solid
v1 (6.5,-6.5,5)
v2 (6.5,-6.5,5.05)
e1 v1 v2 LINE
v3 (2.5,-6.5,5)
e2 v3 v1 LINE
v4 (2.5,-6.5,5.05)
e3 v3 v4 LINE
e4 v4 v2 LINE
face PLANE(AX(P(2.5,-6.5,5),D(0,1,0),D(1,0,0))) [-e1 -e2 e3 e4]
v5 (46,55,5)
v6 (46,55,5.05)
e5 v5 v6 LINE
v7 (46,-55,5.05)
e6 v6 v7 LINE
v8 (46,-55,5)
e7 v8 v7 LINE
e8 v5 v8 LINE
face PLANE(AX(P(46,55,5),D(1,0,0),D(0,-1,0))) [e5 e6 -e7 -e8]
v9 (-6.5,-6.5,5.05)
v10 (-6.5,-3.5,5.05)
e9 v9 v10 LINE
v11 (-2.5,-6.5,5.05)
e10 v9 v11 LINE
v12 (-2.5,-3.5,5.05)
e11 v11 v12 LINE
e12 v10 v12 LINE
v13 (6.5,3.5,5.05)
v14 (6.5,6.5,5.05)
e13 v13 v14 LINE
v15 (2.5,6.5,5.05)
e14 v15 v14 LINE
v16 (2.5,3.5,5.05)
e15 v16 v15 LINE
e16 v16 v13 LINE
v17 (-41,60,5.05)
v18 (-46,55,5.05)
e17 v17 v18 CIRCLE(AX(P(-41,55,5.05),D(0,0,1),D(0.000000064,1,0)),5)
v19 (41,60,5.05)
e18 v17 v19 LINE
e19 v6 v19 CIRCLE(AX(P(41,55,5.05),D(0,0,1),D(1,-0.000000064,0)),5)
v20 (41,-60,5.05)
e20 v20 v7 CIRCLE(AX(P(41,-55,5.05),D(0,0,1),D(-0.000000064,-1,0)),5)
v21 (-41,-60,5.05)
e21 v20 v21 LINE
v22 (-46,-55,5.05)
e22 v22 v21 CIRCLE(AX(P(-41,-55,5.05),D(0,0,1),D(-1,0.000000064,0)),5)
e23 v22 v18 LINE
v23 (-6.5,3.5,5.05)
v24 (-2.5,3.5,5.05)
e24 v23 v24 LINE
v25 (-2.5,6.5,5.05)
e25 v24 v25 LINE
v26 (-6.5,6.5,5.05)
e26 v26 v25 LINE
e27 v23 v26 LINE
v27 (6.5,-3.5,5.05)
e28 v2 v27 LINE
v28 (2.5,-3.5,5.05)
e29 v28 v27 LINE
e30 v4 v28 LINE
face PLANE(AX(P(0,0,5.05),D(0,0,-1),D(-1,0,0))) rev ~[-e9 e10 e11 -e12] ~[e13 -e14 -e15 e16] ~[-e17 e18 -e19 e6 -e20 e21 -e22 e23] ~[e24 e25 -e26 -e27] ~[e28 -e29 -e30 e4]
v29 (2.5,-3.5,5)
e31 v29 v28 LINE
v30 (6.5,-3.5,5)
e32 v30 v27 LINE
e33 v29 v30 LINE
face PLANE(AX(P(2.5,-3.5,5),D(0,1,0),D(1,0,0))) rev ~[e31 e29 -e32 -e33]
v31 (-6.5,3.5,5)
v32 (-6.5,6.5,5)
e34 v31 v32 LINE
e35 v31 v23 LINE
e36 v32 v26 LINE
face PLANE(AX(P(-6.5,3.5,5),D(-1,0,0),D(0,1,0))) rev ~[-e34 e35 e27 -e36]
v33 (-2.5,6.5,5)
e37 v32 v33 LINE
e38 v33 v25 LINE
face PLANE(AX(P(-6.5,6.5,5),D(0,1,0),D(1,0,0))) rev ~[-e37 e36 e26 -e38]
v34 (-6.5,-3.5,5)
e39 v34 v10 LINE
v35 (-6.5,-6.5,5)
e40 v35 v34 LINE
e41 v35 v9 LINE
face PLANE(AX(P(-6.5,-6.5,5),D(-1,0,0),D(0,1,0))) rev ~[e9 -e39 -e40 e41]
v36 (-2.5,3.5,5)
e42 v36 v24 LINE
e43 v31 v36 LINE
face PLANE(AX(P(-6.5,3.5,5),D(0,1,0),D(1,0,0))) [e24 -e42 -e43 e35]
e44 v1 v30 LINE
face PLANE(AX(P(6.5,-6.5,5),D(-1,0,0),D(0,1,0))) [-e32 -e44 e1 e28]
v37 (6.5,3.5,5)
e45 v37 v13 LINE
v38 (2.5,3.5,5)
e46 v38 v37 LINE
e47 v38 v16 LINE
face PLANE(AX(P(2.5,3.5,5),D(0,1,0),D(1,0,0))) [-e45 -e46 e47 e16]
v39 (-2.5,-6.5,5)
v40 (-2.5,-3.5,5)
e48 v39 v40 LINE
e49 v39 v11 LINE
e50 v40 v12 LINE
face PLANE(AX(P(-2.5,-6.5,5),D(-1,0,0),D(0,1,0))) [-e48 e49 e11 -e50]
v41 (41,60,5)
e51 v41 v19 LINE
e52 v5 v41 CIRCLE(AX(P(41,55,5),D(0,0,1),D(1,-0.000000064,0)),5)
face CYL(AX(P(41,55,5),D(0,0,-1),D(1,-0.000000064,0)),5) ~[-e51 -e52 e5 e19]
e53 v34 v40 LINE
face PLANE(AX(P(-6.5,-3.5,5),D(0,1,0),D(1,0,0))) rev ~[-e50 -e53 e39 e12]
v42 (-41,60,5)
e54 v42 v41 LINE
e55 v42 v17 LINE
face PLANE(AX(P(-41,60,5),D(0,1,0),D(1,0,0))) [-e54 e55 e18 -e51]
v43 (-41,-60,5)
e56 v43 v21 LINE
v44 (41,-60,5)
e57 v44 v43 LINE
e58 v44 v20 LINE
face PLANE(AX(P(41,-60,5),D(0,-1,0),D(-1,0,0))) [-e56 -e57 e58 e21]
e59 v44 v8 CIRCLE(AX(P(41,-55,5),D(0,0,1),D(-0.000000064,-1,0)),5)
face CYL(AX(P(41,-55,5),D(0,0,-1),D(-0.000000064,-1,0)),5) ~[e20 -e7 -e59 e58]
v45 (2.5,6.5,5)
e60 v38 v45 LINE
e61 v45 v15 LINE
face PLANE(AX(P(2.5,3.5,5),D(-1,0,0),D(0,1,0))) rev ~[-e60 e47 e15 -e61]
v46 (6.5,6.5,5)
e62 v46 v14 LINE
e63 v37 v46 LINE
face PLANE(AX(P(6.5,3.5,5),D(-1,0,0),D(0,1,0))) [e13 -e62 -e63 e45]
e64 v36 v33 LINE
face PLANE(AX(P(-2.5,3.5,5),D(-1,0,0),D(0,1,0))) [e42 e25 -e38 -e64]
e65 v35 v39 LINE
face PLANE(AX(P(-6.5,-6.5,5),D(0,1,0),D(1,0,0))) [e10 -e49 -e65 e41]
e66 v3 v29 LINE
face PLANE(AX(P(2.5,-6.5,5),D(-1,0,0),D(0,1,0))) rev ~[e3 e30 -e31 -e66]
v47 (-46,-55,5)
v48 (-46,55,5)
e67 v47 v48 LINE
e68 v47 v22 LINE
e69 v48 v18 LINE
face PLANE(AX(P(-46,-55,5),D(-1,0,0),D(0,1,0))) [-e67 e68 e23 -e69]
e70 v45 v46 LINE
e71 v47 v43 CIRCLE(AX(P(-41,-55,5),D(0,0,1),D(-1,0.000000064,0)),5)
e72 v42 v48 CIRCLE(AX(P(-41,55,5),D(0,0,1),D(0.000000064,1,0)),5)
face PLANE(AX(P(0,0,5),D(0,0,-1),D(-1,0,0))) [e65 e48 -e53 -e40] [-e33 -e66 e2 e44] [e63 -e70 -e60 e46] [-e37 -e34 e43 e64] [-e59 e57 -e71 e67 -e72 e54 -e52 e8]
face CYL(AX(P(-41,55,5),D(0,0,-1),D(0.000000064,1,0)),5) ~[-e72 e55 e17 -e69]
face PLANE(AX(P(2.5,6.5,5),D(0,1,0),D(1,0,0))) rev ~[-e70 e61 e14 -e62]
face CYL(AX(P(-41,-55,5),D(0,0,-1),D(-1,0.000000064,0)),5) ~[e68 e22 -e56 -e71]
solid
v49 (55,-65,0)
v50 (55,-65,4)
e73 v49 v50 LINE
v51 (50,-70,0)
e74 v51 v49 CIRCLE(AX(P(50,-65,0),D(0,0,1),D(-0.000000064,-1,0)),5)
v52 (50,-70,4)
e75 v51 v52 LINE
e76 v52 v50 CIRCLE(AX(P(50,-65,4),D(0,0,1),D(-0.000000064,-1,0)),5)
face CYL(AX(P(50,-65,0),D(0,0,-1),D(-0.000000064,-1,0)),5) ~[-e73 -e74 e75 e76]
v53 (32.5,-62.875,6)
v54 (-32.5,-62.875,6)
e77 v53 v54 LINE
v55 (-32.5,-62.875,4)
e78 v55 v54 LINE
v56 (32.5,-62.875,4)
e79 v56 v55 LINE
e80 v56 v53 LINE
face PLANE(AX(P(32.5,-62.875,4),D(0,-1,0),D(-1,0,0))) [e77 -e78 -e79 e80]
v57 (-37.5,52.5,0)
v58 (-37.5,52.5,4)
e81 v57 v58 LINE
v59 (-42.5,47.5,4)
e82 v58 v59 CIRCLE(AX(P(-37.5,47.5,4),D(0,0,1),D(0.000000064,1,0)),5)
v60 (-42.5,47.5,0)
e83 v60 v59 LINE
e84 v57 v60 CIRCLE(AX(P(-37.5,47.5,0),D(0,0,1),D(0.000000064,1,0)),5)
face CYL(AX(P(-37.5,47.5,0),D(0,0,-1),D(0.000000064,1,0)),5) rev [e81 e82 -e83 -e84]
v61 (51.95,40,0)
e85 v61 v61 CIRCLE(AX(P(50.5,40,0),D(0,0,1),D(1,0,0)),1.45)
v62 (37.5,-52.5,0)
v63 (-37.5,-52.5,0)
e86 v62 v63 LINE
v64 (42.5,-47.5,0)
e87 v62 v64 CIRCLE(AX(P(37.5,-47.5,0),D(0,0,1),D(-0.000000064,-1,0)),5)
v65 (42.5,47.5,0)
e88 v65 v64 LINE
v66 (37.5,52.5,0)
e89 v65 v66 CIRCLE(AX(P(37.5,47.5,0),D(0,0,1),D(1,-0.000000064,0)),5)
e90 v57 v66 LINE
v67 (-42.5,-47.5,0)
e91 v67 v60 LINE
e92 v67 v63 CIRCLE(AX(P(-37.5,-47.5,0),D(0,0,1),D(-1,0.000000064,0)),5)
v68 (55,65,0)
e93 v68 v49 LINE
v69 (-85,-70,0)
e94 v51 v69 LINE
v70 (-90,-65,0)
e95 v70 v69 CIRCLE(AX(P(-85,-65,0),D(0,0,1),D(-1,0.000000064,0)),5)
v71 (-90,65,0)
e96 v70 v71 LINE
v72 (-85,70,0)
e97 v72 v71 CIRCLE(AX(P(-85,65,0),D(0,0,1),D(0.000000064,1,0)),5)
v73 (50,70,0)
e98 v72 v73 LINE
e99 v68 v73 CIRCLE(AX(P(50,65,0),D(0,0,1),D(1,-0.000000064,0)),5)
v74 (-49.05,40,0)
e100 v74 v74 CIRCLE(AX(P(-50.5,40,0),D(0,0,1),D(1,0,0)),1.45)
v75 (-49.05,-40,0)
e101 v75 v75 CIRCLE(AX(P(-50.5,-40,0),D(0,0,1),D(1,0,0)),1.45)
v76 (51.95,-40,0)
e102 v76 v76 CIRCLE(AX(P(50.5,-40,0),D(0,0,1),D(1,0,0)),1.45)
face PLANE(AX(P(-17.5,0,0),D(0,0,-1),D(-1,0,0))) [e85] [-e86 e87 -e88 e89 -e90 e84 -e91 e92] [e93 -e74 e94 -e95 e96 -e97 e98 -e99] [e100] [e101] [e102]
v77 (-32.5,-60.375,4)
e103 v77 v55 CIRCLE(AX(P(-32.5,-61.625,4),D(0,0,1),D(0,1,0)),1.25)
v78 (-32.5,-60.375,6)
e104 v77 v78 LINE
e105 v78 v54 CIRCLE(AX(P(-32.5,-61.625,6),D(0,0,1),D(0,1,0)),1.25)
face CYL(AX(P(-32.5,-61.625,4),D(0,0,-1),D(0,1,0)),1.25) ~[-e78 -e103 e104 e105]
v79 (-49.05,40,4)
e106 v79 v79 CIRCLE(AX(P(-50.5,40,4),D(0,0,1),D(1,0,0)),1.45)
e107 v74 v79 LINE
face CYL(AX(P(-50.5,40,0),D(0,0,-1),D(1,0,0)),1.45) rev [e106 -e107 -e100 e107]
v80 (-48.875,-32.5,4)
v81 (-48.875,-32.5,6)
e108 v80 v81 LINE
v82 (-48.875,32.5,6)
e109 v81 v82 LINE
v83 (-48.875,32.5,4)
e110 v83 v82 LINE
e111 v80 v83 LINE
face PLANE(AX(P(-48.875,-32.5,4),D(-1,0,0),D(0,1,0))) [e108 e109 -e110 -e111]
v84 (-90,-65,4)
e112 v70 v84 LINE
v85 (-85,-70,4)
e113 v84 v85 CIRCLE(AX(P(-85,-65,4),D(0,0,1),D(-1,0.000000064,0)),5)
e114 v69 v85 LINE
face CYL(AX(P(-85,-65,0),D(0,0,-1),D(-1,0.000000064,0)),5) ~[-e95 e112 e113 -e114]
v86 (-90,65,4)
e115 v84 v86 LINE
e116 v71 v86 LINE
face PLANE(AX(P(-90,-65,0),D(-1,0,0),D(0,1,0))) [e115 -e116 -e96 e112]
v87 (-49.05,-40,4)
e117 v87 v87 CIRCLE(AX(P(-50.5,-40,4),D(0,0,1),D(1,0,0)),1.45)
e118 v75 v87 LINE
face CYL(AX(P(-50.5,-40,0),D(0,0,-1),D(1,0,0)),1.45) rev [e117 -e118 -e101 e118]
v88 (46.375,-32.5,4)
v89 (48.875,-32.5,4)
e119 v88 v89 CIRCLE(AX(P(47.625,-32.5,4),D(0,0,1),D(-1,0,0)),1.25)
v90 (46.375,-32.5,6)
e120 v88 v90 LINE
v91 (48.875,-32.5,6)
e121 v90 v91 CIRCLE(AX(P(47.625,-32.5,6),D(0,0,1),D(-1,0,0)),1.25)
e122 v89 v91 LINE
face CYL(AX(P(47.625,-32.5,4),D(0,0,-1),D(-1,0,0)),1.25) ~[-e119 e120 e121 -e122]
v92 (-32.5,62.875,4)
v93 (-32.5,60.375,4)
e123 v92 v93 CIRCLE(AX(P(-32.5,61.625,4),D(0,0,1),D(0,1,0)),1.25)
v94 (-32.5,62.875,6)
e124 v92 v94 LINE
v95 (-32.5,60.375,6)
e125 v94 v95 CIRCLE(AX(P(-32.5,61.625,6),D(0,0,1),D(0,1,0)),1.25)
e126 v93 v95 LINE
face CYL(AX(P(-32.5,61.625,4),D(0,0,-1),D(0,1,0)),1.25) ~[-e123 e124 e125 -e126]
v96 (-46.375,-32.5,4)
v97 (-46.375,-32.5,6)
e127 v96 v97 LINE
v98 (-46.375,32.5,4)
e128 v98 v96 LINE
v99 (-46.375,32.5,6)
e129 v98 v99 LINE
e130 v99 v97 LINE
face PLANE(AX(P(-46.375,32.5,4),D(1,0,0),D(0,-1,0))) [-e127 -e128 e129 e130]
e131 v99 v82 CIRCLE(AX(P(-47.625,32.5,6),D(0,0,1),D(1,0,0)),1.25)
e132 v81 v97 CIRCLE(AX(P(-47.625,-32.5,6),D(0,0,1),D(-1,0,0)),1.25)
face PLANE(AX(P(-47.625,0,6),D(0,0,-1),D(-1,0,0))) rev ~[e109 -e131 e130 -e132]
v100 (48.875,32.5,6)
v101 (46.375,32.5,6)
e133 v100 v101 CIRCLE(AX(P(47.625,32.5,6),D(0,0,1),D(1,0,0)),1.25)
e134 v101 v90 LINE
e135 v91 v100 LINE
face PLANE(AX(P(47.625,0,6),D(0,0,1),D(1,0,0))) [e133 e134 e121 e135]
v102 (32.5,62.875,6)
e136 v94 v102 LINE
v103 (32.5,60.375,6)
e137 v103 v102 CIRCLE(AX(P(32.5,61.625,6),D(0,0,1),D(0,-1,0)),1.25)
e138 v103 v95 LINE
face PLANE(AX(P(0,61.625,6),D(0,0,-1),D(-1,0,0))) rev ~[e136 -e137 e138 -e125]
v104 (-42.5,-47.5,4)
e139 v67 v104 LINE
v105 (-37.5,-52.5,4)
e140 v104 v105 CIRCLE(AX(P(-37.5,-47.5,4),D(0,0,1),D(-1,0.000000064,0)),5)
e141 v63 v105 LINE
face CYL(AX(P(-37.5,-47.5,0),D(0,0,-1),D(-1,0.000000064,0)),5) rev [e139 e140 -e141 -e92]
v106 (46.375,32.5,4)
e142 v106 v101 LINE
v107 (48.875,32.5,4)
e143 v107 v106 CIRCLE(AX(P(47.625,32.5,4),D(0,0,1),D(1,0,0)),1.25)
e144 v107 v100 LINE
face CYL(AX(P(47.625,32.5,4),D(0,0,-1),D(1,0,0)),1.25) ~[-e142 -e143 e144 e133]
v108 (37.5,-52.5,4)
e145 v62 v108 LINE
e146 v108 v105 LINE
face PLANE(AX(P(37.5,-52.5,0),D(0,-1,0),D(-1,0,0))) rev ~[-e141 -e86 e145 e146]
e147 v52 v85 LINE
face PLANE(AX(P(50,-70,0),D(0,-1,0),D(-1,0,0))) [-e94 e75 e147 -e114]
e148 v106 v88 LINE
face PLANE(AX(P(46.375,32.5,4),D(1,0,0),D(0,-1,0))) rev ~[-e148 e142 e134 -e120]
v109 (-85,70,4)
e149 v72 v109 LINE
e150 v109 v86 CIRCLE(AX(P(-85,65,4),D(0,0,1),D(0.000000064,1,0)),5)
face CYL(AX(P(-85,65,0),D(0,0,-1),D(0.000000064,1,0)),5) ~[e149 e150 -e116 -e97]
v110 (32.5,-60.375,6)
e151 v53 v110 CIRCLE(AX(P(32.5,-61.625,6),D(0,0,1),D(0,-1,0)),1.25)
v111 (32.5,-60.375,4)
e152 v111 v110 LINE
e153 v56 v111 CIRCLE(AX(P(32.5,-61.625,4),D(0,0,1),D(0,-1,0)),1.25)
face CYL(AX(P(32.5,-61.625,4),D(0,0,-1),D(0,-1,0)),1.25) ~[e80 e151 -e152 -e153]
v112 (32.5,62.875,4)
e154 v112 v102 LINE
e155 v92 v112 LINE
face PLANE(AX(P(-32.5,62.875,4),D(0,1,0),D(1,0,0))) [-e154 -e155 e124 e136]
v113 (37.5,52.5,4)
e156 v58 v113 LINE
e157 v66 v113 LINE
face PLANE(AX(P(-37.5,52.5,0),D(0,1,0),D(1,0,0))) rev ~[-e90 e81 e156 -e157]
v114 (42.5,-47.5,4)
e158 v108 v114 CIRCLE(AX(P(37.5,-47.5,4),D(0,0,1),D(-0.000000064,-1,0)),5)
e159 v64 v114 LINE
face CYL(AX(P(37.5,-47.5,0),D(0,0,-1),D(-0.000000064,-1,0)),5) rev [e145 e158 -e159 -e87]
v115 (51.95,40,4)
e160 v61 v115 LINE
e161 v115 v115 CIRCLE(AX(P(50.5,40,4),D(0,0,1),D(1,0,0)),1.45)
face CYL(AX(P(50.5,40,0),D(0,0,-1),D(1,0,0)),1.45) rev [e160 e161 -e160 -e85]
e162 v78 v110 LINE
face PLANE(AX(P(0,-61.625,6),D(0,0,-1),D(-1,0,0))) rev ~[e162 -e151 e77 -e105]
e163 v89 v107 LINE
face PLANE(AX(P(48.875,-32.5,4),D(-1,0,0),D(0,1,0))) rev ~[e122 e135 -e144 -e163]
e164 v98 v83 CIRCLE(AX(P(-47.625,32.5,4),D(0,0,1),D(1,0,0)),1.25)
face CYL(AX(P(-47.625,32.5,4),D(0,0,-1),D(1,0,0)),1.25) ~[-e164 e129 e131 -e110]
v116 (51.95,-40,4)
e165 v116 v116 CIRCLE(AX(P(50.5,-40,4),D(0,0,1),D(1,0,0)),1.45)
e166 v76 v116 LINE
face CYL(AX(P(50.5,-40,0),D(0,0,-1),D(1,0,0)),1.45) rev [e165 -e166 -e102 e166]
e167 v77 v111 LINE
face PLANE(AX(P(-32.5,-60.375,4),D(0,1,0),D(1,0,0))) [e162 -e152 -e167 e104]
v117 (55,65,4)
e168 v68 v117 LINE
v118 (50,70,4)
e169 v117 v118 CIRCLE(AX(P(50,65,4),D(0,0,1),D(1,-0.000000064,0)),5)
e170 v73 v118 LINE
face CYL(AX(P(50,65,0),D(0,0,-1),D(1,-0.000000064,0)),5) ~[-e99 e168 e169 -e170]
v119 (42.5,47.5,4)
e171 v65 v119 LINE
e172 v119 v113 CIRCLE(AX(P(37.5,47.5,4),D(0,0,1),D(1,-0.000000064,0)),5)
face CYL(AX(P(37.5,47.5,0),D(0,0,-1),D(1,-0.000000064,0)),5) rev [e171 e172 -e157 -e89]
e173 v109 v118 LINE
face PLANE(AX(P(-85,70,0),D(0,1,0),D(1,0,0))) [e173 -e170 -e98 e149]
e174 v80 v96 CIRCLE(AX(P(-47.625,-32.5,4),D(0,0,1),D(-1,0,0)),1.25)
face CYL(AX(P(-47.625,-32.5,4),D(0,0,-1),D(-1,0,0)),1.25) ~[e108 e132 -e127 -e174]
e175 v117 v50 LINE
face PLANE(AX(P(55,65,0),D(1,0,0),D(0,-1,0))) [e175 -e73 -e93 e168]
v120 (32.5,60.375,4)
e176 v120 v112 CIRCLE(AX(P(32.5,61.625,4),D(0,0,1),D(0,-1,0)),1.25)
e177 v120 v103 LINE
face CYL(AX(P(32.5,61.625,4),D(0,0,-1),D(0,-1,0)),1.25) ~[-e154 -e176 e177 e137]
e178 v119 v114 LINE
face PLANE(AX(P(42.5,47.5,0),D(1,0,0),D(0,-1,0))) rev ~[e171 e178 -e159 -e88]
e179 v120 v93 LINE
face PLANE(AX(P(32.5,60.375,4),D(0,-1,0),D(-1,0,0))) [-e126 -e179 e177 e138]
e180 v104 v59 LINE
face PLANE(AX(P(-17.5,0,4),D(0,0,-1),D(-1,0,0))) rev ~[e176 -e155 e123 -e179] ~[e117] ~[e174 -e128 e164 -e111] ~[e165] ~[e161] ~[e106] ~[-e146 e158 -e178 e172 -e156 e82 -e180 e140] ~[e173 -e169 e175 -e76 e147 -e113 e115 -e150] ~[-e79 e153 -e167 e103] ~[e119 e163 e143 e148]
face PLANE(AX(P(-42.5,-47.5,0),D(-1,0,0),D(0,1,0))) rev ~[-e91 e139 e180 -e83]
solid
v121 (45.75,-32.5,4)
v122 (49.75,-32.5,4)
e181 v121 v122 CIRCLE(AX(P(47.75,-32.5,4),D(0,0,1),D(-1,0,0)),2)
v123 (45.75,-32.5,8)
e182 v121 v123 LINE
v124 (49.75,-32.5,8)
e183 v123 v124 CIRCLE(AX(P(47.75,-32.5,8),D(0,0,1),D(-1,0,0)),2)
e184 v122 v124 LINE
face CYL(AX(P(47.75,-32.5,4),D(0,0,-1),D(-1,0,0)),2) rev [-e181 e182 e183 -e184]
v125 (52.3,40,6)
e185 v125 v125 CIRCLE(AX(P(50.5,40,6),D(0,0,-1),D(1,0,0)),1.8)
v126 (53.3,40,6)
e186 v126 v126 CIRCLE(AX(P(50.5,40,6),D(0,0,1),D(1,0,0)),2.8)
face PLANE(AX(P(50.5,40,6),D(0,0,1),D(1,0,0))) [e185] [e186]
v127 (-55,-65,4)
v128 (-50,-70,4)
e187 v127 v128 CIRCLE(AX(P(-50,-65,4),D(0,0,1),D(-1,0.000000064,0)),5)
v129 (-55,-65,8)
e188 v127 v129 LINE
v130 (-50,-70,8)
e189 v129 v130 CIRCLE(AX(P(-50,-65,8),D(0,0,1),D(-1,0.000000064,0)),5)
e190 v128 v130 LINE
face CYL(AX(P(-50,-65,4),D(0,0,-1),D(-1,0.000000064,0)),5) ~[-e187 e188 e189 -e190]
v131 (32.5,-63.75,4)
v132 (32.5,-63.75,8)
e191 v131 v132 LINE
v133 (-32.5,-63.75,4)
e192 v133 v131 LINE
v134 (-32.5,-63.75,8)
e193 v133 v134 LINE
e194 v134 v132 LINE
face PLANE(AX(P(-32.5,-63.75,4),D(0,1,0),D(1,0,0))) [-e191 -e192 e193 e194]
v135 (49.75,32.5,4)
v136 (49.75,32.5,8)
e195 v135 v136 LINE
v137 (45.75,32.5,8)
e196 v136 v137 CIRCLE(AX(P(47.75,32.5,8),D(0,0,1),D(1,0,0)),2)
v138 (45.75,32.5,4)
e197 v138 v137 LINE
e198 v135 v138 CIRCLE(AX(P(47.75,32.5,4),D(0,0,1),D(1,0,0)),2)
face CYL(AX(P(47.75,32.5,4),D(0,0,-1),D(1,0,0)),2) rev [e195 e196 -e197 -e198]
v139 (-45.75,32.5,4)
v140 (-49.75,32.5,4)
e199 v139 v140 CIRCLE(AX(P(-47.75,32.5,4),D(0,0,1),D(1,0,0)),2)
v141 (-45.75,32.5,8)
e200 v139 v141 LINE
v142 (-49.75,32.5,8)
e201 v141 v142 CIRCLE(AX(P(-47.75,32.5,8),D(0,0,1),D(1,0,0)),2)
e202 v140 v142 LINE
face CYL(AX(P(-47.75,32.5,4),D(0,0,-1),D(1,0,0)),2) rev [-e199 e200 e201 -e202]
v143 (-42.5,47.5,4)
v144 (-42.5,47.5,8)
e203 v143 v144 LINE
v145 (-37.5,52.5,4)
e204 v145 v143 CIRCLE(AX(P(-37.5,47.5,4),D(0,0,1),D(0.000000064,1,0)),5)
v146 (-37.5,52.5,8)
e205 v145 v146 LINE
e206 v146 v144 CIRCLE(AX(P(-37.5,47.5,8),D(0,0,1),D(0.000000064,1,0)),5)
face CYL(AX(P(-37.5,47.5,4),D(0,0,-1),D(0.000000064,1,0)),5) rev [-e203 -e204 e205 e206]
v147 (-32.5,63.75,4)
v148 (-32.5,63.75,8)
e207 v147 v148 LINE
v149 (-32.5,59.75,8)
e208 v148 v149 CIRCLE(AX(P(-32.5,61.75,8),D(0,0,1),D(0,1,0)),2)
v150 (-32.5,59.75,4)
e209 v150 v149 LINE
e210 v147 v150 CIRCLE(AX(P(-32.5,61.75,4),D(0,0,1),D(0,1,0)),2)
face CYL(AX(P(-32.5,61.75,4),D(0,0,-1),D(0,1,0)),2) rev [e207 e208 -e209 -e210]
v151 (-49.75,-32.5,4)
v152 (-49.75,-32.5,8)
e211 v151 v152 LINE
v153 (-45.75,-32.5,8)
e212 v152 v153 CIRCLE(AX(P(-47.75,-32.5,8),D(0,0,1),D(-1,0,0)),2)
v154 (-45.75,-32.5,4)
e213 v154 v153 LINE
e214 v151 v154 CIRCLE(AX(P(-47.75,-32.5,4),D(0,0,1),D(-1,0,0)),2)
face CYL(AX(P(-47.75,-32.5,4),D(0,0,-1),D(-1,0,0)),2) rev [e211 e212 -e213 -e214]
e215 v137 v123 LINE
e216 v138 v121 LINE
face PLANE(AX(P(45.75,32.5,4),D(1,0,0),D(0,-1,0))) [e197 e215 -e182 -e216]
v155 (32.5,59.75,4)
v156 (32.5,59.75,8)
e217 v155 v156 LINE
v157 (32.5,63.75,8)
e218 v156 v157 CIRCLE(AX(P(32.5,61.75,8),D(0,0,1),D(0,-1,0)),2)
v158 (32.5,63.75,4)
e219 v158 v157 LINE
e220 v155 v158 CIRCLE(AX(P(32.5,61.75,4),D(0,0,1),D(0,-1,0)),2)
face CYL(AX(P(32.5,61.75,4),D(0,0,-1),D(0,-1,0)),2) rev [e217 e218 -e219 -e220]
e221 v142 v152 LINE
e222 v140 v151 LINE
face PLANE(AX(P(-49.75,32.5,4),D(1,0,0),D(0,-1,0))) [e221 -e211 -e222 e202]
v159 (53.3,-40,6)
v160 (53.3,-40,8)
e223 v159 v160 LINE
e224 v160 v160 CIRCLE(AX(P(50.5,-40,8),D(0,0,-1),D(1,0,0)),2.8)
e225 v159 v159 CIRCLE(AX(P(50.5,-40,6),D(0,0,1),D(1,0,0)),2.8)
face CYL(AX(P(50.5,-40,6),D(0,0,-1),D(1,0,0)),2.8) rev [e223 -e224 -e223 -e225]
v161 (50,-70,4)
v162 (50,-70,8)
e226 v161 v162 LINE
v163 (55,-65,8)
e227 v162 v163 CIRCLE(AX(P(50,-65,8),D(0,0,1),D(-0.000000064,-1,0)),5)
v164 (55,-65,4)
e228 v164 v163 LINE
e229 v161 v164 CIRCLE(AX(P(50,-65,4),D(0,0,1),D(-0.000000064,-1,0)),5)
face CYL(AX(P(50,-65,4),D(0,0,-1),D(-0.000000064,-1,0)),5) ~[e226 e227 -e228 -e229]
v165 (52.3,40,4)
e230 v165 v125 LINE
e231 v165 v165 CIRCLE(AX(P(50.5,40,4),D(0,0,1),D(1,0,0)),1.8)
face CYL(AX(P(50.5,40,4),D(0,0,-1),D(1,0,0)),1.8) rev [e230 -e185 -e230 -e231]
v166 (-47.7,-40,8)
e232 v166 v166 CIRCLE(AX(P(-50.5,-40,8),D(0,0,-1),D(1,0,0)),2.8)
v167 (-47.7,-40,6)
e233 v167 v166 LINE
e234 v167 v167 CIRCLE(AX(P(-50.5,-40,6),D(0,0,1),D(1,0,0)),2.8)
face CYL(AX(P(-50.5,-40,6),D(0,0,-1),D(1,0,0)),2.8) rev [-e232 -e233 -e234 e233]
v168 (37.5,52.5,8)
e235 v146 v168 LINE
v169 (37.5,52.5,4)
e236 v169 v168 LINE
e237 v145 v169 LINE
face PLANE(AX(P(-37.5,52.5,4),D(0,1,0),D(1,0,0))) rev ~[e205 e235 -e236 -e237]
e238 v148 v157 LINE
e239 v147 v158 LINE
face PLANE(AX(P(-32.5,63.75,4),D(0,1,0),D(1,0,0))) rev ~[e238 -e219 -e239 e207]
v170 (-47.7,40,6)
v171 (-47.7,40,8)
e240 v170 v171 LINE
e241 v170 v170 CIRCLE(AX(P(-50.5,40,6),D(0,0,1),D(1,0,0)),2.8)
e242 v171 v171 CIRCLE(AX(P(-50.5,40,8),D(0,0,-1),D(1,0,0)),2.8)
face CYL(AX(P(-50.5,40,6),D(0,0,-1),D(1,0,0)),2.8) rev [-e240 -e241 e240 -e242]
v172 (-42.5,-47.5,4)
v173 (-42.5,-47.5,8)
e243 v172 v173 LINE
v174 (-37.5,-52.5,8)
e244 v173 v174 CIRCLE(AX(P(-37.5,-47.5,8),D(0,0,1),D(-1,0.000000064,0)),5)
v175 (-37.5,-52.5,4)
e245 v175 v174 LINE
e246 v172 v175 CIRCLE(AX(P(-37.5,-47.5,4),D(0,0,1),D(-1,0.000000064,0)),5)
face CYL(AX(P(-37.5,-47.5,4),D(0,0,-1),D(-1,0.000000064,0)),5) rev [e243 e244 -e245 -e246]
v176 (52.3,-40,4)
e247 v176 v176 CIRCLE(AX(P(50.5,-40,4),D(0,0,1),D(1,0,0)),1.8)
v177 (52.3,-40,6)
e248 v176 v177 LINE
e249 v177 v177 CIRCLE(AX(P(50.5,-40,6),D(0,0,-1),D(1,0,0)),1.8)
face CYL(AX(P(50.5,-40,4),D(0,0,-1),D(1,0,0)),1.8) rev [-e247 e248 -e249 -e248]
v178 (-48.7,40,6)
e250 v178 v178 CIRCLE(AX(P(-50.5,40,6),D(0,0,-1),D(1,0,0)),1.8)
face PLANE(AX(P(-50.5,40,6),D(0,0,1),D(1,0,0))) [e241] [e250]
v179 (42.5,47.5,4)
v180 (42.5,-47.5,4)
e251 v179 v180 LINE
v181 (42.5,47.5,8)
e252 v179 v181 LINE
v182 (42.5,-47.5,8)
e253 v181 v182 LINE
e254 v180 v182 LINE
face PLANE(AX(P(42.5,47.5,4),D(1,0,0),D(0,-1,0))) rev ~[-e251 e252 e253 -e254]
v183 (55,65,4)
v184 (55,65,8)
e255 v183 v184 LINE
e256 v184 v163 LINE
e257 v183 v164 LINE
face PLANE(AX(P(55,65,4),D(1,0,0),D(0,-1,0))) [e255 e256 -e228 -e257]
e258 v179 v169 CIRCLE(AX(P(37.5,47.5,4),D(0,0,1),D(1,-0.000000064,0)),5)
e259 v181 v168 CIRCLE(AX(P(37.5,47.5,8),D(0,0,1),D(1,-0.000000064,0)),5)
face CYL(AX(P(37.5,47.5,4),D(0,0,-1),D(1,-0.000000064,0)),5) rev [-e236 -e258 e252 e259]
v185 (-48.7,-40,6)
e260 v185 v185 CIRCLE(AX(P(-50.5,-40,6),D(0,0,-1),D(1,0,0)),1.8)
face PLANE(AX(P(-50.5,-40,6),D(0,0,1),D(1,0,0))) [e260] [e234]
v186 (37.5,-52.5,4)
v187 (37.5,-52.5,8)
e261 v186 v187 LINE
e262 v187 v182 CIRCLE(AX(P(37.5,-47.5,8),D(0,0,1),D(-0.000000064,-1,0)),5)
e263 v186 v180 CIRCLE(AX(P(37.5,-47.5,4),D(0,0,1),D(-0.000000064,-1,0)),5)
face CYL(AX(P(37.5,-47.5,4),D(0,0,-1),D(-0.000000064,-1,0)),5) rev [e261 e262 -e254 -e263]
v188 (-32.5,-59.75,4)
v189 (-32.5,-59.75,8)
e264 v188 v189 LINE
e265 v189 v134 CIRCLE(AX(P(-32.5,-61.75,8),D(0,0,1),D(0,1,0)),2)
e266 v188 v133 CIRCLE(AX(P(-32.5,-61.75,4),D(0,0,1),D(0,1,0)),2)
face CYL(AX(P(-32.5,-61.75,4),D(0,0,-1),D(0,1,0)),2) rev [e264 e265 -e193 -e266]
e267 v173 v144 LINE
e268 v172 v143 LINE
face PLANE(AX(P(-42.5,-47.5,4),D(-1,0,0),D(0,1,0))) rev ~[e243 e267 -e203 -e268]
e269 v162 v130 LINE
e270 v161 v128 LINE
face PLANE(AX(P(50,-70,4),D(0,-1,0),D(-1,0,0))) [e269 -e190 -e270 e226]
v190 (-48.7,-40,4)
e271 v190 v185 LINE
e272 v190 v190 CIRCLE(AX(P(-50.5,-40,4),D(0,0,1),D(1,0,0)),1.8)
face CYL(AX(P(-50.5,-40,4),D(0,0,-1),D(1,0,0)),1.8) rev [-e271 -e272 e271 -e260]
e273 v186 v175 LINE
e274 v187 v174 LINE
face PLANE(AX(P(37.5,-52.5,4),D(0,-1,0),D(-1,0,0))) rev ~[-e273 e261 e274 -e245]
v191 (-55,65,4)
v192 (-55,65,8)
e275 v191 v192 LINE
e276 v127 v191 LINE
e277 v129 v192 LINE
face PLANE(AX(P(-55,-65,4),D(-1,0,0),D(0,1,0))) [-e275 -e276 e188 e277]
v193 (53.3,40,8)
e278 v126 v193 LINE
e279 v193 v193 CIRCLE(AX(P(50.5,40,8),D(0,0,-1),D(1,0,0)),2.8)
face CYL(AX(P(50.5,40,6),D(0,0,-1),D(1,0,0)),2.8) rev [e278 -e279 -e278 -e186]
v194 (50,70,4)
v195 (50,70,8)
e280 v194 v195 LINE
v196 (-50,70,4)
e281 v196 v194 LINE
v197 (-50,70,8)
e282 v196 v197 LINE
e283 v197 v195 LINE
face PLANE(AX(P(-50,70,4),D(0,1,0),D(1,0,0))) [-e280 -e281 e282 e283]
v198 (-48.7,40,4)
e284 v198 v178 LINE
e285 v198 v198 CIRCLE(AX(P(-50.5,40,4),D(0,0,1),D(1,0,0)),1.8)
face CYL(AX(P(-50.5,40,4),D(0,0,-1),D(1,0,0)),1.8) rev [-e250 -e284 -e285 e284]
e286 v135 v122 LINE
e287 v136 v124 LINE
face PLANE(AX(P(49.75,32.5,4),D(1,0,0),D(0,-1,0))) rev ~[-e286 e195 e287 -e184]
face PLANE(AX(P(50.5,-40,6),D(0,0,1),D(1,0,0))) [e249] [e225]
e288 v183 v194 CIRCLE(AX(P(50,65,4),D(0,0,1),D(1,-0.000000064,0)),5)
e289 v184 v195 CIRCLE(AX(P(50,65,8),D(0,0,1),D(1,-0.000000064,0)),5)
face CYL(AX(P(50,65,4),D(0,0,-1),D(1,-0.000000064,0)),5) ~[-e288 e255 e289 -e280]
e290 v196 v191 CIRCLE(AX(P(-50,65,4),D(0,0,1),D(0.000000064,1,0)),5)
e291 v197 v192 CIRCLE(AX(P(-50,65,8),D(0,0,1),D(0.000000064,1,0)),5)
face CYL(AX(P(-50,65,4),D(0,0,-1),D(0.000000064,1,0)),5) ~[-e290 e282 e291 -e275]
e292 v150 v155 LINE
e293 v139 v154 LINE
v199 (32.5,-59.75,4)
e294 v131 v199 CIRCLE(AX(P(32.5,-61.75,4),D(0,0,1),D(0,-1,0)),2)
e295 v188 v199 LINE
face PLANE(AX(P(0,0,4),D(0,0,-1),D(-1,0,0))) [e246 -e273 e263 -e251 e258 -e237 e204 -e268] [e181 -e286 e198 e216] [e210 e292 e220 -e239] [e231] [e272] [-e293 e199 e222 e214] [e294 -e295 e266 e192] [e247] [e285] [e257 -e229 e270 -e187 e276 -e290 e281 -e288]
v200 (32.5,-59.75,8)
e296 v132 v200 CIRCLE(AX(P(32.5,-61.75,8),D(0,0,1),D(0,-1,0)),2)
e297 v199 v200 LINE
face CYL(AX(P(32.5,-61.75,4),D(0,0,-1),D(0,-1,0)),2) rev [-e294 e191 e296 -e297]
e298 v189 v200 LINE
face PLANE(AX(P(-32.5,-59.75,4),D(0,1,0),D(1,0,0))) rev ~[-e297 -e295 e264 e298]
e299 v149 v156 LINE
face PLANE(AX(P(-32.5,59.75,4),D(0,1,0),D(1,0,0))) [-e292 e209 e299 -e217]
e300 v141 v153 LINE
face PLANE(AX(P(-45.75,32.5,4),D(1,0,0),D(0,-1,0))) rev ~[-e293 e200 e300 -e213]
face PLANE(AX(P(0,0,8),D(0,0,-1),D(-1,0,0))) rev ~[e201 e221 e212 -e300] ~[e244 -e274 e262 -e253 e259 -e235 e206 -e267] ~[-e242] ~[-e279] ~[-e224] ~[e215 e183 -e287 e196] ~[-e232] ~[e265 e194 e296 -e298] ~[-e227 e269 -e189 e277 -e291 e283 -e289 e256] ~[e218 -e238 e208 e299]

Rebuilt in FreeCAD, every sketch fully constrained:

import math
import FreeCAD as App
import Part
import Sketcher
from FreeCAD import Vector
Q = App.Units.Quantity


def add_polygon(sketch, points):
    """Adds a closed chain of lines whose ends are joined by coincident constraints."""
    first, n = sketch.GeometryCount, len(points)
    for a, b in zip(points, points[1:] + points[:1]):
        sketch.addGeometry(Part.LineSegment(App.Vector(*a, 0), App.Vector(*b, 0)), False)
    for i in range(n):
        sketch.addConstraint(Sketcher.Constraint("Coincident", first + i, 2, first + (i + 1) % n, 1))

doc = App.newDocument("Part")
body = doc.addObject("PartDesign::Body", "Body")

# Sketch on XY plane
sketch1 = body.newObject("Sketcher::SketchObject", "Sketch")
sketch1.AttachmentSupport = (doc.getObject("XY_Plane"), [""])
sketch1.MapMode = "FlatFace"
sketch1.addGeometry(Part.LineSegment(Vector(41, 60, 0), Vector(-41, 60, 0)), False)  # 0
sketch1.addGeometry(Part.ArcOfCircle(Part.Circle(Vector(-41, 55, 0), Vector(0, 0, 1), 5), math.radians(89.999996), math.radians(180.000004)), False)  # 1
sketch1.addGeometry(Part.LineSegment(Vector(-46, 55, 0), Vector(-46, -55, 0)), False)  # 2
sketch1.addGeometry(Part.ArcOfCircle(Part.Circle(Vector(-41, -55, 0), Vector(0, 0, 1), 5), math.radians(179.999996), math.radians(270.000004)), False)  # 3
sketch1.addGeometry(Part.LineSegment(Vector(-41, -60, 0), Vector(41, -60, 0)), False)  # 4
sketch1.addGeometry(Part.ArcOfCircle(Part.Circle(Vector(41, -55, 0), Vector(0, 0, 1), 5), math.radians(-90.000004), math.radians(0.000004)), False)  # 5
sketch1.addGeometry(Part.LineSegment(Vector(46, -55, 0), Vector(46, 55, 0)), False)  # 6
sketch1.addGeometry(Part.ArcOfCircle(Part.Circle(Vector(41, 55, 0), Vector(0, 0, 1), 5), math.radians(-0.000004), math.radians(90.000004)), False)  # 7
add_polygon(sketch1, [(2.5, -6.5), (2.5, -3.5), (6.5, -3.5), (6.5, -6.5)])  # lines 8-11
add_polygon(sketch1, [(-6.5, -6.5), (-6.5, -3.5), (-2.5, -3.5), (-2.5, -6.5)])  # lines 12-15
add_polygon(sketch1, [(2.5, 3.5), (2.5, 6.5), (6.5, 6.5), (6.5, 3.5)])  # lines 16-19
add_polygon(sketch1, [(-6.5, 3.5), (-6.5, 6.5), (-2.5, 6.5), (-2.5, 3.5)])  # lines 20-23
sketch1.addConstraint([
    Sketcher.Constraint("Tangent", 0, 2, 1, 1),
    Sketcher.Constraint("Tangent", 1, 2, 2, 1),
    Sketcher.Constraint("Tangent", 2, 2, 3, 1),
    Sketcher.Constraint("Tangent", 3, 2, 4, 1),
    Sketcher.Constraint("Tangent", 4, 2, 5, 1),
    Sketcher.Constraint("Tangent", 5, 2, 6, 1),
    Sketcher.Constraint("Tangent", 6, 2, 7, 1),
    Sketcher.Constraint("Tangent", 7, 2, 0, 1),
    Sketcher.Constraint("Horizontal", 0),
    Sketcher.Constraint("Vertical", 2),
    Sketcher.Constraint("Horizontal", 4),
    Sketcher.Constraint("Vertical", 6),
    Sketcher.Constraint("Vertical", 8),
    Sketcher.Constraint("Horizontal", 9),
    Sketcher.Constraint("Vertical", 10),
    Sketcher.Constraint("Horizontal", 11),
    Sketcher.Constraint("Vertical", 12),
    Sketcher.Constraint("Horizontal", 13),
    Sketcher.Constraint("Vertical", 14),
    Sketcher.Constraint("Horizontal", 15),
    Sketcher.Constraint("Vertical", 16),
    Sketcher.Constraint("Horizontal", 17),
    Sketcher.Constraint("Vertical", 18),
    Sketcher.Constraint("Horizontal", 19),
    Sketcher.Constraint("Vertical", 20),
    Sketcher.Constraint("Horizontal", 21),
    Sketcher.Constraint("Vertical", 22),
    Sketcher.Constraint("Horizontal", 23),
    Sketcher.Constraint("Equal", 1, 3),
    Sketcher.Constraint("Equal", 3, 5),
    Sketcher.Constraint("Equal", 5, 7),
    Sketcher.Constraint("Symmetric", 1, 3, 5, 3, -1, 1),
    Sketcher.Constraint("Symmetric", 14, 2, 16, 2, -1, 1),
    Sketcher.Constraint("Symmetric", 12, 2, 18, 2, -1, 1),
    Sketcher.Constraint("Symmetric", 10, 2, 20, 2, -1, 1),
    Sketcher.Constraint("Symmetric", 8, 2, 22, 2, -1, 1),
    Sketcher.Constraint("Symmetric", 9, 2, 12, 2, -2),
    Sketcher.Constraint("Symmetric", 11, 2, 14, 2, -2),
    Sketcher.Constraint("Radius", 1, Q("5 mm")),
    Sketcher.Constraint("DistanceX", 0, 2, 0, 1, Q("82 mm")),
    Sketcher.Constraint("DistanceX", 9, 1, 9, 2, Q("4 mm")),
    Sketcher.Constraint("DistanceY", 2, 2, 2, 1, Q("110 mm")),
    Sketcher.Constraint("DistanceY", 8, 1, 8, 2, Q("3 mm")),
    Sketcher.Constraint("DistanceX", 12, 2, 8, 2, Q("9 mm")),
    Sketcher.Constraint("DistanceY", 8, 2, 16, 2, Q("10 mm")),
])
pad1 = body.newObject("PartDesign::Pad", "Pad")
pad1.Profile = sketch1
pad1.Length = 0.05
body2 = doc.addObject("PartDesign::Body", "Body001")
doc.recompute()

body.Placement = App.Placement(Vector(0, 0, 5), App.Rotation(Vector(0, 0, 1), 0))
boolean = body2.newObject("PartDesign::Boolean", "Boolean")
boolean.Type = "Fuse"
boolean.addObjects([body])
body3 = doc.addObject("PartDesign::Body", "Body002")
body3.AllowCompound = True

# Sketch on XY plane
sketch2 = body3.newObject("Sketcher::SketchObject", "Sketch001")
sketch2.AttachmentSupport = (doc.getObject("XY_Plane002"), [""])
sketch2.MapMode = "FlatFace"
sketch2.addGeometry([
    Part.LineSegment(Vector(46.375, 32.5, 0), Vector(46.375, -32.5, 0)),  # 0
    Part.ArcOfCircle(Part.Circle(Vector(47.625, -32.5, 0), Vector(0, 0, 1), 1.25), math.radians(180), math.radians(360)),  # 1
    Part.LineSegment(Vector(48.875, -32.5, 0), Vector(48.875, 32.5, 0)),  # 2
    Part.ArcOfCircle(Part.Circle(Vector(47.625, 32.5, 0), Vector(0, 0, 1), 1.25), math.radians(0), math.radians(180)),  # 3
    Part.LineSegment(Vector(-46.375, -32.5, 0), Vector(-46.375, 32.5, 0)),  # 4
    Part.ArcOfCircle(Part.Circle(Vector(-47.625, 32.5, 0), Vector(0, 0, 1), 1.25), math.radians(0), math.radians(180)),  # 5
    Part.LineSegment(Vector(-48.875, 32.5, 0), Vector(-48.875, -32.5, 0)),  # 6
    Part.ArcOfCircle(Part.Circle(Vector(-47.625, -32.5, 0), Vector(0, 0, 1), 1.25), math.radians(180), math.radians(360)),  # 7
    Part.LineSegment(Vector(32.5, 62.875, 0), Vector(-32.5, 62.875, 0)),  # 8
    Part.ArcOfCircle(Part.Circle(Vector(-32.5, 61.625, 0), Vector(0, 0, 1), 1.25), math.radians(90), math.radians(270)),  # 9
    Part.LineSegment(Vector(-32.5, 60.375, 0), Vector(32.5, 60.375, 0)),  # 10
    Part.ArcOfCircle(Part.Circle(Vector(32.5, 61.625, 0), Vector(0, 0, 1), 1.25), math.radians(-90), math.radians(90)),  # 11
    Part.LineSegment(Vector(32.5, -60.375, 0), Vector(-32.5, -60.375, 0)),  # 12
    Part.ArcOfCircle(Part.Circle(Vector(-32.5, -61.625, 0), Vector(0, 0, 1), 1.25), math.radians(90), math.radians(270)),  # 13
    Part.LineSegment(Vector(-32.5, -62.875, 0), Vector(32.5, -62.875, 0)),  # 14
    Part.ArcOfCircle(Part.Circle(Vector(32.5, -61.625, 0), Vector(0, 0, 1), 1.25), math.radians(-90), math.radians(90)),  # 15
], False)
sketch2.addConstraint([
    Sketcher.Constraint("Tangent", 0, 2, 1, 1),
    Sketcher.Constraint("Tangent", 1, 2, 2, 1),
    Sketcher.Constraint("Tangent", 2, 2, 3, 1),
    Sketcher.Constraint("Tangent", 3, 2, 0, 1),
    Sketcher.Constraint("Tangent", 4, 2, 5, 1),
    Sketcher.Constraint("Tangent", 5, 2, 6, 1),
    Sketcher.Constraint("Tangent", 6, 2, 7, 1),
    Sketcher.Constraint("Tangent", 7, 2, 4, 1),
    Sketcher.Constraint("Tangent", 8, 2, 9, 1),
    Sketcher.Constraint("Tangent", 9, 2, 10, 1),
    Sketcher.Constraint("Tangent", 10, 2, 11, 1),
    Sketcher.Constraint("Tangent", 11, 2, 8, 1),
    Sketcher.Constraint("Tangent", 12, 2, 13, 1),
    Sketcher.Constraint("Tangent", 13, 2, 14, 1),
    Sketcher.Constraint("Tangent", 14, 2, 15, 1),
    Sketcher.Constraint("Tangent", 15, 2, 12, 1),
    Sketcher.Constraint("Vertical", 0),
    Sketcher.Constraint("Vertical", 2),
    Sketcher.Constraint("Vertical", 4),
    Sketcher.Constraint("Vertical", 6),
    Sketcher.Constraint("Horizontal", 8),
    Sketcher.Constraint("Horizontal", 10),
    Sketcher.Constraint("Horizontal", 12),
    Sketcher.Constraint("Horizontal", 14),
    Sketcher.Constraint("Equal", 3, 5),
    Sketcher.Constraint("Equal", 7, 9),
    Sketcher.Constraint("Equal", 11, 13),
    Sketcher.Constraint("Symmetric", 1, 3, 5, 3, -1, 1),
    Sketcher.Constraint("Symmetric", 11, 3, 13, 3, -1, 1),
    Sketcher.Constraint("Horizontal", 3, 3, 5, 3),
    Sketcher.Constraint("Horizontal", 1, 3, 7, 3),
    Sketcher.Constraint("Vertical", 9, 3, 13, 3),
    Sketcher.Constraint("Vertical", 11, 3, 15, 3),
    Sketcher.Constraint("Equal", 14, 0),
    Sketcher.Constraint("DistanceX", 8, 2, 8, 1, Q("65 mm")),
    Sketcher.Constraint("Radius", 1, Q("1.25 mm")),
    Sketcher.Constraint("DistanceX", 7, 3, 0, 2, Q("94 mm")),
    Sketcher.Constraint("DistanceY", 13, 3, 9, 3, Q("123.25 mm")),
])
pad2 = body3.newObject("PartDesign::Pad", "Pad001")
pad2.Profile = sketch2
pad2.Length = 2
body4 = doc.addObject("PartDesign::Body", "Body003")
body4.AllowCompound = True
doc.recompute()

body3.Placement = App.Placement(Vector(0, 0, 4), App.Rotation(Vector(0, 0, 1), 0))
boolean2 = body4.newObject("PartDesign::Boolean", "Boolean001")
boolean2.Type = "Fuse"
boolean2.addObjects([body3])
body5 = doc.addObject("PartDesign::Body", "Body004")

# Sketch on XY plane
sketch3 = body5.newObject("Sketcher::SketchObject", "Sketch002")
sketch3.AttachmentSupport = (doc.getObject("XY_Plane004"), [""])
sketch3.MapMode = "FlatFace"
sketch3.addGeometry([
    Part.LineSegment(Vector(50, 70, 0), Vector(-85, 70, 0)),  # 0
    Part.ArcOfCircle(Part.Circle(Vector(-85, 65, 0), Vector(0, 0, 1), 5), math.radians(89.999996), math.radians(180.000004)),  # 1
    Part.LineSegment(Vector(-90, 65, 0), Vector(-90, -65, 0)),  # 2
    Part.ArcOfCircle(Part.Circle(Vector(-85, -65, 0), Vector(0, 0, 1), 5), math.radians(179.999996), math.radians(270.000004)),  # 3
    Part.LineSegment(Vector(-85, -70, 0), Vector(50, -70, 0)),  # 4
    Part.ArcOfCircle(Part.Circle(Vector(50, -65, 0), Vector(0, 0, 1), 5), math.radians(-90.000004), math.radians(0.000004)),  # 5
    Part.LineSegment(Vector(55, -65, 0), Vector(55, 65, 0)),  # 6
    Part.ArcOfCircle(Part.Circle(Vector(50, 65, 0), Vector(0, 0, 1), 5), math.radians(-0.000004), math.radians(90.000004)),  # 7
    Part.Circle(Vector(50.5, -40, 0), Vector(0, 0, 1), 1.45),  # 8
    Part.Circle(Vector(-50.5, -40, 0), Vector(0, 0, 1), 1.45),  # 9
    Part.Circle(Vector(50.5, 40, 0), Vector(0, 0, 1), 1.45),  # 10
    Part.LineSegment(Vector(-37.5, 52.5, 0), Vector(37.5, 52.5, 0)),  # 11
    Part.ArcOfCircle(Part.Circle(Vector(37.5, 47.5, 0), Vector(0, 0, 1), 5), math.radians(-0.000004), math.radians(90.000004)),  # 12
    Part.LineSegment(Vector(42.5, 47.5, 0), Vector(42.5, -47.5, 0)),  # 13
    Part.ArcOfCircle(Part.Circle(Vector(37.5, -47.5, 0), Vector(0, 0, 1), 5), math.radians(-90.000004), math.radians(0.000004)),  # 14
    Part.LineSegment(Vector(37.5, -52.5, 0), Vector(-37.5, -52.5, 0)),  # 15
    Part.ArcOfCircle(Part.Circle(Vector(-37.5, -47.5, 0), Vector(0, 0, 1), 5), math.radians(179.999996), math.radians(270.000004)),  # 16
    Part.LineSegment(Vector(-42.5, -47.5, 0), Vector(-42.5, 47.5, 0)),  # 17
    Part.ArcOfCircle(Part.Circle(Vector(-37.5, 47.5, 0), Vector(0, 0, 1), 5), math.radians(89.999996), math.radians(180.000004)),  # 18
    Part.Circle(Vector(-50.5, 40, 0), Vector(0, 0, 1), 1.45),  # 19
], False)
sketch3.addConstraint([
    Sketcher.Constraint("Tangent", 0, 2, 1, 1),
    Sketcher.Constraint("Tangent", 1, 2, 2, 1),
    Sketcher.Constraint("Tangent", 2, 2, 3, 1),
    Sketcher.Constraint("Tangent", 3, 2, 4, 1),
    Sketcher.Constraint("Tangent", 4, 2, 5, 1),
    Sketcher.Constraint("Tangent", 5, 2, 6, 1),
    Sketcher.Constraint("Tangent", 6, 2, 7, 1),
    Sketcher.Constraint("Tangent", 7, 2, 0, 1),
    Sketcher.Constraint("Tangent", 11, 2, 12, 2),
    Sketcher.Constraint("Tangent", 12, 1, 13, 1),
    Sketcher.Constraint("Tangent", 13, 2, 14, 2),
    Sketcher.Constraint("Tangent", 14, 1, 15, 1),
    Sketcher.Constraint("Tangent", 15, 2, 16, 2),
    Sketcher.Constraint("Tangent", 16, 1, 17, 1),
    Sketcher.Constraint("Tangent", 17, 2, 18, 2),
    Sketcher.Constraint("Tangent", 18, 1, 11, 1),
    Sketcher.Constraint("Horizontal", 0),
    Sketcher.Constraint("Vertical", 2),
    Sketcher.Constraint("Horizontal", 4),
    Sketcher.Constraint("Vertical", 6),
    Sketcher.Constraint("Horizontal", 11),
    Sketcher.Constraint("Vertical", 13),
    Sketcher.Constraint("Horizontal", 15),
    Sketcher.Constraint("Vertical", 17),
    Sketcher.Constraint("Equal", 1, 3),
    Sketcher.Constraint("Equal", 3, 5),
    Sketcher.Constraint("Equal", 5, 7),
    Sketcher.Constraint("Equal", 8, 9),
    Sketcher.Constraint("Equal", 9, 10),
    Sketcher.Constraint("Equal", 7, 12),
    Sketcher.Constraint("Equal", 12, 14),
    Sketcher.Constraint("Equal", 14, 16),
    Sketcher.Constraint("Equal", 16, 18),
    Sketcher.Constraint("Equal", 10, 19),
    Sketcher.Constraint("Symmetric", 9, 3, 10, 3, -1, 1),
    Sketcher.Constraint("Symmetric", 12, 3, 16, 3, -1, 1),
    Sketcher.Constraint("Symmetric", 8, 3, 19, 3, -1, 1),
    Sketcher.Constraint("Symmetric", 8, 3, 9, 3, -2),
    Sketcher.Constraint("Radius", 1, Q("5 mm")),
    Sketcher.Constraint("Diameter", 8, Q("2.9 mm")),
    Sketcher.Constraint("DistanceX", 0, 2, 0, 1, Q("135 mm")),
    Sketcher.Constraint("DistanceX", 11, 1, 11, 2, Q("75 mm")),
    Sketcher.Constraint("DistanceY", 2, 2, 2, 1, Q("130 mm")),
    Sketcher.Constraint("DistanceY", 13, 2, 13, 1, Q("95 mm")),
    Sketcher.Constraint("DistanceX", 1, 3, -1, 1, Q("85 mm")),
    Sketcher.Constraint("DistanceY", -1, 1, 1, 3, Q("65 mm")),
    Sketcher.Constraint("DistanceY", 8, 3, -1, 1, Q("40 mm")),
    Sketcher.Constraint("DistanceX", 9, 3, 8, 3, Q("101 mm")),
])
pad3 = body5.newObject("PartDesign::Pad", "Pad002")
pad3.Profile = sketch3
pad3.Length = 4
doc.recompute()

boolean3 = body5.newObject("PartDesign::Boolean", "Boolean002")
boolean3.Type = "Fuse"
boolean3.addObjects([body4])
body6 = doc.addObject("PartDesign::Body", "Body005")
body6.AllowCompound = True

# Sketch on XY plane
sketch4 = body6.newObject("Sketcher::SketchObject", "Sketch003")
sketch4.AttachmentSupport = (doc.getObject("XY_Plane005"), [""])
sketch4.MapMode = "FlatFace"
sketch4.addGeometry([
    Part.Circle(Vector(-50.5, 40, 0), Vector(0, 0, 1), 2.8),
    Part.Circle(Vector(50.5, -40, 0), Vector(0, 0, 1), 2.8),
    Part.Circle(Vector(-50.5, -40, 0), Vector(0, 0, 1), 2.8),
    Part.Circle(Vector(50.5, 40, 0), Vector(0, 0, 1), 2.8),
], False)
sketch4.addConstraint([
    Sketcher.Constraint("Equal", 0, 1),
    Sketcher.Constraint("Equal", 1, 2),
    Sketcher.Constraint("Equal", 2, 3),
    Sketcher.Constraint("Symmetric", 0, 3, 1, 3, -1, 1),
    Sketcher.Constraint("Symmetric", 2, 3, 3, 3, -1, 1),
    Sketcher.Constraint("Symmetric", 1, 3, 2, 3, -2),
    Sketcher.Constraint("Diameter", 0, Q("5.6 mm")),
    Sketcher.Constraint("DistanceY", -1, 1, 0, 3, Q("40 mm")),
    Sketcher.Constraint("DistanceX", 0, 3, 1, 3, Q("101 mm")),
])
pad4 = body6.newObject("PartDesign::Pad", "Pad003")
pad4.Profile = sketch4
pad4.Length = 3
body7 = doc.addObject("PartDesign::Body", "Body006")
body7.AllowCompound = True
doc.recompute()

body6.Placement = App.Placement(Vector(0, 0, 6), App.Rotation(Vector(0, 0, 1), 0))
boolean4 = body7.newObject("PartDesign::Boolean", "Boolean003")
boolean4.Type = "Fuse"
boolean4.addObjects([body6])
body8 = doc.addObject("PartDesign::Body", "Body007")

# Sketch on XY plane
sketch5 = body8.newObject("Sketcher::SketchObject", "Sketch004")
sketch5.AttachmentSupport = (doc.getObject("XY_Plane007"), [""])
sketch5.MapMode = "FlatFace"
sketch5.addGeometry([
    Part.LineSegment(Vector(50, 70, 0), Vector(-50, 70, 0)),  # 0
    Part.ArcOfCircle(Part.Circle(Vector(-50, 65, 0), Vector(0, 0, 1), 5), math.radians(89.999996), math.radians(180.000004)),  # 1
    Part.LineSegment(Vector(-55, 65, 0), Vector(-55, -65, 0)),  # 2
    Part.ArcOfCircle(Part.Circle(Vector(-50, -65, 0), Vector(0, 0, 1), 5), math.radians(179.999996), math.radians(270.000004)),  # 3
    Part.LineSegment(Vector(-50, -70, 0), Vector(50, -70, 0)),  # 4
    Part.ArcOfCircle(Part.Circle(Vector(50, -65, 0), Vector(0, 0, 1), 5), math.radians(-90.000004), math.radians(0.000004)),  # 5
    Part.LineSegment(Vector(55, -65, 0), Vector(55, 65, 0)),  # 6
    Part.ArcOfCircle(Part.Circle(Vector(50, 65, 0), Vector(0, 0, 1), 5), math.radians(-0.000004), math.radians(90.000004)),  # 7
    Part.Circle(Vector(50.5, -40, 0), Vector(0, 0, 1), 1.8),  # 8
    Part.LineSegment(Vector(-32.5, -59.75, 0), Vector(32.5, -59.75, 0)),  # 9
    Part.ArcOfCircle(Part.Circle(Vector(32.5, -61.75, 0), Vector(0, 0, 1), 2), math.radians(-90), math.radians(90)),  # 10
    Part.LineSegment(Vector(32.5, -63.75, 0), Vector(-32.5, -63.75, 0)),  # 11
    Part.ArcOfCircle(Part.Circle(Vector(-32.5, -61.75, 0), Vector(0, 0, 1), 2), math.radians(90), math.radians(270)),  # 12
    Part.Circle(Vector(-50.5, -40, 0), Vector(0, 0, 1), 1.8),  # 13
    Part.LineSegment(Vector(49.75, 32.5, 0), Vector(49.75, -32.5, 0)),  # 14
    Part.ArcOfCircle(Part.Circle(Vector(47.75, -32.5, 0), Vector(0, 0, 1), 2), math.radians(180), math.radians(360)),  # 15
    Part.LineSegment(Vector(45.75, -32.5, 0), Vector(45.75, 32.5, 0)),  # 16
    Part.ArcOfCircle(Part.Circle(Vector(47.75, 32.5, 0), Vector(0, 0, 1), 2), math.radians(0), math.radians(180)),  # 17
    Part.Circle(Vector(50.5, 40, 0), Vector(0, 0, 1), 1.8),  # 18
    Part.LineSegment(Vector(-37.5, 52.5, 0), Vector(37.5, 52.5, 0)),  # 19
    Part.ArcOfCircle(Part.Circle(Vector(37.5, 47.5, 0), Vector(0, 0, 1), 5), math.radians(-0.000004), math.radians(90.000004)),  # 20
    Part.LineSegment(Vector(42.5, 47.5, 0), Vector(42.5, -47.5, 0)),  # 21
    Part.ArcOfCircle(Part.Circle(Vector(37.5, -47.5, 0), Vector(0, 0, 1), 5), math.radians(-90.000004), math.radians(0.000004)),  # 22
    Part.LineSegment(Vector(37.5, -52.5, 0), Vector(-37.5, -52.5, 0)),  # 23
    Part.ArcOfCircle(Part.Circle(Vector(-37.5, -47.5, 0), Vector(0, 0, 1), 5), math.radians(179.999996), math.radians(270.000004)),  # 24
    Part.LineSegment(Vector(-42.5, -47.5, 0), Vector(-42.5, 47.5, 0)),  # 25
    Part.ArcOfCircle(Part.Circle(Vector(-37.5, 47.5, 0), Vector(0, 0, 1), 5), math.radians(89.999996), math.radians(180.000004)),  # 26
    Part.LineSegment(Vector(-45.75, 32.5, 0), Vector(-45.75, -32.5, 0)),  # 27
    Part.ArcOfCircle(Part.Circle(Vector(-47.75, -32.5, 0), Vector(0, 0, 1), 2), math.radians(180), math.radians(360)),  # 28
    Part.LineSegment(Vector(-49.75, -32.5, 0), Vector(-49.75, 32.5, 0)),  # 29
    Part.ArcOfCircle(Part.Circle(Vector(-47.75, 32.5, 0), Vector(0, 0, 1), 2), math.radians(0), math.radians(180)),  # 30
    Part.LineSegment(Vector(-32.5, 63.75, 0), Vector(32.5, 63.75, 0)),  # 31
    Part.ArcOfCircle(Part.Circle(Vector(32.5, 61.75, 0), Vector(0, 0, 1), 2), math.radians(-90), math.radians(90)),  # 32
    Part.LineSegment(Vector(32.5, 59.75, 0), Vector(-32.5, 59.75, 0)),  # 33
    Part.ArcOfCircle(Part.Circle(Vector(-32.5, 61.75, 0), Vector(0, 0, 1), 2), math.radians(90), math.radians(270)),  # 34
    Part.Circle(Vector(-50.5, 40, 0), Vector(0, 0, 1), 1.8),  # 35
], False)
sketch5.addConstraint([
    Sketcher.Constraint("Tangent", 0, 2, 1, 1),
    Sketcher.Constraint("Tangent", 1, 2, 2, 1),
    Sketcher.Constraint("Tangent", 2, 2, 3, 1),
    Sketcher.Constraint("Tangent", 3, 2, 4, 1),
    Sketcher.Constraint("Tangent", 4, 2, 5, 1),
    Sketcher.Constraint("Tangent", 5, 2, 6, 1),
    Sketcher.Constraint("Tangent", 6, 2, 7, 1),
    Sketcher.Constraint("Tangent", 7, 2, 0, 1),
    Sketcher.Constraint("Tangent", 9, 2, 10, 2),
    Sketcher.Constraint("Tangent", 10, 1, 11, 1),
    Sketcher.Constraint("Tangent", 11, 2, 12, 2),
    Sketcher.Constraint("Tangent", 12, 1, 9, 1),
    Sketcher.Constraint("Tangent", 14, 2, 15, 2),
    Sketcher.Constraint("Tangent", 15, 1, 16, 1),
    Sketcher.Constraint("Tangent", 16, 2, 17, 2),
    Sketcher.Constraint("Tangent", 17, 1, 14, 1),
    Sketcher.Constraint("Tangent", 19, 2, 20, 2),
    Sketcher.Constraint("Tangent", 20, 1, 21, 1),
    Sketcher.Constraint("Tangent", 21, 2, 22, 2),
    Sketcher.Constraint("Tangent", 22, 1, 23, 1),
    Sketcher.Constraint("Tangent", 23, 2, 24, 2),
    Sketcher.Constraint("Tangent", 24, 1, 25, 1),
    Sketcher.Constraint("Tangent", 25, 2, 26, 2),
    Sketcher.Constraint("Tangent", 26, 1, 19, 1),
    Sketcher.Constraint("Tangent", 27, 2, 28, 2),
    Sketcher.Constraint("Tangent", 28, 1, 29, 1),
    Sketcher.Constraint("Tangent", 29, 2, 30, 2),
    Sketcher.Constraint("Tangent", 30, 1, 27, 1),
    Sketcher.Constraint("Tangent", 31, 2, 32, 2),
    Sketcher.Constraint("Tangent", 32, 1, 33, 1),
    Sketcher.Constraint("Tangent", 33, 2, 34, 2),
    Sketcher.Constraint("Tangent", 34, 1, 31, 1),
    Sketcher.Constraint("Horizontal", 0),
    Sketcher.Constraint("Vertical", 2),
    Sketcher.Constraint("Horizontal", 4),
    Sketcher.Constraint("Vertical", 6),
    Sketcher.Constraint("Horizontal", 9),
    Sketcher.Constraint("Horizontal", 11),
    Sketcher.Constraint("Vertical", 14),
    Sketcher.Constraint("Vertical", 16),
    Sketcher.Constraint("Horizontal", 19),
    Sketcher.Constraint("Vertical", 21),
    Sketcher.Constraint("Horizontal", 23),
    Sketcher.Constraint("Vertical", 25),
    Sketcher.Constraint("Vertical", 27),
    Sketcher.Constraint("Vertical", 29),
    Sketcher.Constraint("Horizontal", 31),
    Sketcher.Constraint("Horizontal", 33),
    Sketcher.Constraint("Equal", 1, 3),
    Sketcher.Constraint("Equal", 3, 5),
    Sketcher.Constraint("Equal", 5, 7),
    Sketcher.Constraint("Equal", 8, 13),
    Sketcher.Constraint("Equal", 12, 15),
    Sketcher.Constraint("Equal", 13, 18),
    Sketcher.Constraint("Equal", 7, 20),
    Sketcher.Constraint("Equal", 20, 22),
    Sketcher.Constraint("Equal", 22, 24),
    Sketcher.Constraint("Equal", 24, 26),
    Sketcher.Constraint("Equal", 17, 28),
    Sketcher.Constraint("Equal", 30, 32),
    Sketcher.Constraint("Equal", 18, 35),
    Sketcher.Constraint("Symmetric", 1, 3, 5, 3, -1, 1),
    Sketcher.Constraint("Symmetric", 13, 3, 18, 3, -1, 1),
    Sketcher.Constraint("Symmetric", 20, 3, 24, 3, -1, 1),
    Sketcher.Constraint("Symmetric", 17, 3, 28, 3, -1, 1),
    Sketcher.Constraint("Symmetric", 12, 3, 32, 3, -1, 1),
    Sketcher.Constraint("Symmetric", 8, 3, 35, 3, -1, 1),
    Sketcher.Constraint("Symmetric", 8, 3, 13, 3, -2),
    Sketcher.Constraint("Horizontal", 15, 3, 28, 3),
    Sketcher.Constraint("Horizontal", 17, 3, 30, 3),
    Sketcher.Constraint("Vertical", 10, 3, 32, 3),
    Sketcher.Constraint("Vertical", 12, 3, 34, 3),
    Sketcher.Constraint("Equal", 33, 14),
    Sketcher.Constraint("Radius", 1, Q("5 mm")),
    Sketcher.Constraint("Radius", 10, Q("2 mm")),
    Sketcher.Constraint("Diameter", 8, Q("3.6 mm")),
    Sketcher.Constraint("DistanceX", 0, 2, 0, 1, Q("100 mm")),
    Sketcher.Constraint("DistanceX", 9, 1, 9, 2, Q("65 mm")),
    Sketcher.Constraint("DistanceX", 19, 1, 19, 2, Q("75 mm")),
    Sketcher.Constraint("DistanceY", 2, 2, 2, 1, Q("130 mm")),
    Sketcher.Constraint("DistanceY", 21, 2, 21, 1, Q("95 mm")),
    Sketcher.Constraint("DistanceY", 8, 3, -1, 1, Q("40 mm")),
    Sketcher.Constraint("DistanceX", 10, 3, 8, 3, Q("18 mm")),
    Sketcher.Constraint("DistanceY", 10, 3, -1, 1, Q("61.75 mm")),
    Sketcher.Constraint("DistanceX", -1, 1, 15, 3, Q("47.75 mm")),
])
pad5 = body8.newObject("PartDesign::Pad", "Pad004")
pad5.Profile = sketch5
pad5.Length = 4
body9 = doc.addObject("PartDesign::Body", "Body008")
doc.recompute()

body8.Placement = App.Placement(Vector(0, 0, 4), App.Rotation(Vector(0, 0, 1), 0))
boolean5 = body9.newObject("PartDesign::Boolean", "Boolean004")
boolean5.Type = "Fuse"
boolean5.addObjects([body8])
doc.recompute()

boolean6 = body9.newObject("PartDesign::Boolean", "Boolean005")
boolean6.Type = "Cut"
boolean6.addObjects([body7])

doc.recompute()
